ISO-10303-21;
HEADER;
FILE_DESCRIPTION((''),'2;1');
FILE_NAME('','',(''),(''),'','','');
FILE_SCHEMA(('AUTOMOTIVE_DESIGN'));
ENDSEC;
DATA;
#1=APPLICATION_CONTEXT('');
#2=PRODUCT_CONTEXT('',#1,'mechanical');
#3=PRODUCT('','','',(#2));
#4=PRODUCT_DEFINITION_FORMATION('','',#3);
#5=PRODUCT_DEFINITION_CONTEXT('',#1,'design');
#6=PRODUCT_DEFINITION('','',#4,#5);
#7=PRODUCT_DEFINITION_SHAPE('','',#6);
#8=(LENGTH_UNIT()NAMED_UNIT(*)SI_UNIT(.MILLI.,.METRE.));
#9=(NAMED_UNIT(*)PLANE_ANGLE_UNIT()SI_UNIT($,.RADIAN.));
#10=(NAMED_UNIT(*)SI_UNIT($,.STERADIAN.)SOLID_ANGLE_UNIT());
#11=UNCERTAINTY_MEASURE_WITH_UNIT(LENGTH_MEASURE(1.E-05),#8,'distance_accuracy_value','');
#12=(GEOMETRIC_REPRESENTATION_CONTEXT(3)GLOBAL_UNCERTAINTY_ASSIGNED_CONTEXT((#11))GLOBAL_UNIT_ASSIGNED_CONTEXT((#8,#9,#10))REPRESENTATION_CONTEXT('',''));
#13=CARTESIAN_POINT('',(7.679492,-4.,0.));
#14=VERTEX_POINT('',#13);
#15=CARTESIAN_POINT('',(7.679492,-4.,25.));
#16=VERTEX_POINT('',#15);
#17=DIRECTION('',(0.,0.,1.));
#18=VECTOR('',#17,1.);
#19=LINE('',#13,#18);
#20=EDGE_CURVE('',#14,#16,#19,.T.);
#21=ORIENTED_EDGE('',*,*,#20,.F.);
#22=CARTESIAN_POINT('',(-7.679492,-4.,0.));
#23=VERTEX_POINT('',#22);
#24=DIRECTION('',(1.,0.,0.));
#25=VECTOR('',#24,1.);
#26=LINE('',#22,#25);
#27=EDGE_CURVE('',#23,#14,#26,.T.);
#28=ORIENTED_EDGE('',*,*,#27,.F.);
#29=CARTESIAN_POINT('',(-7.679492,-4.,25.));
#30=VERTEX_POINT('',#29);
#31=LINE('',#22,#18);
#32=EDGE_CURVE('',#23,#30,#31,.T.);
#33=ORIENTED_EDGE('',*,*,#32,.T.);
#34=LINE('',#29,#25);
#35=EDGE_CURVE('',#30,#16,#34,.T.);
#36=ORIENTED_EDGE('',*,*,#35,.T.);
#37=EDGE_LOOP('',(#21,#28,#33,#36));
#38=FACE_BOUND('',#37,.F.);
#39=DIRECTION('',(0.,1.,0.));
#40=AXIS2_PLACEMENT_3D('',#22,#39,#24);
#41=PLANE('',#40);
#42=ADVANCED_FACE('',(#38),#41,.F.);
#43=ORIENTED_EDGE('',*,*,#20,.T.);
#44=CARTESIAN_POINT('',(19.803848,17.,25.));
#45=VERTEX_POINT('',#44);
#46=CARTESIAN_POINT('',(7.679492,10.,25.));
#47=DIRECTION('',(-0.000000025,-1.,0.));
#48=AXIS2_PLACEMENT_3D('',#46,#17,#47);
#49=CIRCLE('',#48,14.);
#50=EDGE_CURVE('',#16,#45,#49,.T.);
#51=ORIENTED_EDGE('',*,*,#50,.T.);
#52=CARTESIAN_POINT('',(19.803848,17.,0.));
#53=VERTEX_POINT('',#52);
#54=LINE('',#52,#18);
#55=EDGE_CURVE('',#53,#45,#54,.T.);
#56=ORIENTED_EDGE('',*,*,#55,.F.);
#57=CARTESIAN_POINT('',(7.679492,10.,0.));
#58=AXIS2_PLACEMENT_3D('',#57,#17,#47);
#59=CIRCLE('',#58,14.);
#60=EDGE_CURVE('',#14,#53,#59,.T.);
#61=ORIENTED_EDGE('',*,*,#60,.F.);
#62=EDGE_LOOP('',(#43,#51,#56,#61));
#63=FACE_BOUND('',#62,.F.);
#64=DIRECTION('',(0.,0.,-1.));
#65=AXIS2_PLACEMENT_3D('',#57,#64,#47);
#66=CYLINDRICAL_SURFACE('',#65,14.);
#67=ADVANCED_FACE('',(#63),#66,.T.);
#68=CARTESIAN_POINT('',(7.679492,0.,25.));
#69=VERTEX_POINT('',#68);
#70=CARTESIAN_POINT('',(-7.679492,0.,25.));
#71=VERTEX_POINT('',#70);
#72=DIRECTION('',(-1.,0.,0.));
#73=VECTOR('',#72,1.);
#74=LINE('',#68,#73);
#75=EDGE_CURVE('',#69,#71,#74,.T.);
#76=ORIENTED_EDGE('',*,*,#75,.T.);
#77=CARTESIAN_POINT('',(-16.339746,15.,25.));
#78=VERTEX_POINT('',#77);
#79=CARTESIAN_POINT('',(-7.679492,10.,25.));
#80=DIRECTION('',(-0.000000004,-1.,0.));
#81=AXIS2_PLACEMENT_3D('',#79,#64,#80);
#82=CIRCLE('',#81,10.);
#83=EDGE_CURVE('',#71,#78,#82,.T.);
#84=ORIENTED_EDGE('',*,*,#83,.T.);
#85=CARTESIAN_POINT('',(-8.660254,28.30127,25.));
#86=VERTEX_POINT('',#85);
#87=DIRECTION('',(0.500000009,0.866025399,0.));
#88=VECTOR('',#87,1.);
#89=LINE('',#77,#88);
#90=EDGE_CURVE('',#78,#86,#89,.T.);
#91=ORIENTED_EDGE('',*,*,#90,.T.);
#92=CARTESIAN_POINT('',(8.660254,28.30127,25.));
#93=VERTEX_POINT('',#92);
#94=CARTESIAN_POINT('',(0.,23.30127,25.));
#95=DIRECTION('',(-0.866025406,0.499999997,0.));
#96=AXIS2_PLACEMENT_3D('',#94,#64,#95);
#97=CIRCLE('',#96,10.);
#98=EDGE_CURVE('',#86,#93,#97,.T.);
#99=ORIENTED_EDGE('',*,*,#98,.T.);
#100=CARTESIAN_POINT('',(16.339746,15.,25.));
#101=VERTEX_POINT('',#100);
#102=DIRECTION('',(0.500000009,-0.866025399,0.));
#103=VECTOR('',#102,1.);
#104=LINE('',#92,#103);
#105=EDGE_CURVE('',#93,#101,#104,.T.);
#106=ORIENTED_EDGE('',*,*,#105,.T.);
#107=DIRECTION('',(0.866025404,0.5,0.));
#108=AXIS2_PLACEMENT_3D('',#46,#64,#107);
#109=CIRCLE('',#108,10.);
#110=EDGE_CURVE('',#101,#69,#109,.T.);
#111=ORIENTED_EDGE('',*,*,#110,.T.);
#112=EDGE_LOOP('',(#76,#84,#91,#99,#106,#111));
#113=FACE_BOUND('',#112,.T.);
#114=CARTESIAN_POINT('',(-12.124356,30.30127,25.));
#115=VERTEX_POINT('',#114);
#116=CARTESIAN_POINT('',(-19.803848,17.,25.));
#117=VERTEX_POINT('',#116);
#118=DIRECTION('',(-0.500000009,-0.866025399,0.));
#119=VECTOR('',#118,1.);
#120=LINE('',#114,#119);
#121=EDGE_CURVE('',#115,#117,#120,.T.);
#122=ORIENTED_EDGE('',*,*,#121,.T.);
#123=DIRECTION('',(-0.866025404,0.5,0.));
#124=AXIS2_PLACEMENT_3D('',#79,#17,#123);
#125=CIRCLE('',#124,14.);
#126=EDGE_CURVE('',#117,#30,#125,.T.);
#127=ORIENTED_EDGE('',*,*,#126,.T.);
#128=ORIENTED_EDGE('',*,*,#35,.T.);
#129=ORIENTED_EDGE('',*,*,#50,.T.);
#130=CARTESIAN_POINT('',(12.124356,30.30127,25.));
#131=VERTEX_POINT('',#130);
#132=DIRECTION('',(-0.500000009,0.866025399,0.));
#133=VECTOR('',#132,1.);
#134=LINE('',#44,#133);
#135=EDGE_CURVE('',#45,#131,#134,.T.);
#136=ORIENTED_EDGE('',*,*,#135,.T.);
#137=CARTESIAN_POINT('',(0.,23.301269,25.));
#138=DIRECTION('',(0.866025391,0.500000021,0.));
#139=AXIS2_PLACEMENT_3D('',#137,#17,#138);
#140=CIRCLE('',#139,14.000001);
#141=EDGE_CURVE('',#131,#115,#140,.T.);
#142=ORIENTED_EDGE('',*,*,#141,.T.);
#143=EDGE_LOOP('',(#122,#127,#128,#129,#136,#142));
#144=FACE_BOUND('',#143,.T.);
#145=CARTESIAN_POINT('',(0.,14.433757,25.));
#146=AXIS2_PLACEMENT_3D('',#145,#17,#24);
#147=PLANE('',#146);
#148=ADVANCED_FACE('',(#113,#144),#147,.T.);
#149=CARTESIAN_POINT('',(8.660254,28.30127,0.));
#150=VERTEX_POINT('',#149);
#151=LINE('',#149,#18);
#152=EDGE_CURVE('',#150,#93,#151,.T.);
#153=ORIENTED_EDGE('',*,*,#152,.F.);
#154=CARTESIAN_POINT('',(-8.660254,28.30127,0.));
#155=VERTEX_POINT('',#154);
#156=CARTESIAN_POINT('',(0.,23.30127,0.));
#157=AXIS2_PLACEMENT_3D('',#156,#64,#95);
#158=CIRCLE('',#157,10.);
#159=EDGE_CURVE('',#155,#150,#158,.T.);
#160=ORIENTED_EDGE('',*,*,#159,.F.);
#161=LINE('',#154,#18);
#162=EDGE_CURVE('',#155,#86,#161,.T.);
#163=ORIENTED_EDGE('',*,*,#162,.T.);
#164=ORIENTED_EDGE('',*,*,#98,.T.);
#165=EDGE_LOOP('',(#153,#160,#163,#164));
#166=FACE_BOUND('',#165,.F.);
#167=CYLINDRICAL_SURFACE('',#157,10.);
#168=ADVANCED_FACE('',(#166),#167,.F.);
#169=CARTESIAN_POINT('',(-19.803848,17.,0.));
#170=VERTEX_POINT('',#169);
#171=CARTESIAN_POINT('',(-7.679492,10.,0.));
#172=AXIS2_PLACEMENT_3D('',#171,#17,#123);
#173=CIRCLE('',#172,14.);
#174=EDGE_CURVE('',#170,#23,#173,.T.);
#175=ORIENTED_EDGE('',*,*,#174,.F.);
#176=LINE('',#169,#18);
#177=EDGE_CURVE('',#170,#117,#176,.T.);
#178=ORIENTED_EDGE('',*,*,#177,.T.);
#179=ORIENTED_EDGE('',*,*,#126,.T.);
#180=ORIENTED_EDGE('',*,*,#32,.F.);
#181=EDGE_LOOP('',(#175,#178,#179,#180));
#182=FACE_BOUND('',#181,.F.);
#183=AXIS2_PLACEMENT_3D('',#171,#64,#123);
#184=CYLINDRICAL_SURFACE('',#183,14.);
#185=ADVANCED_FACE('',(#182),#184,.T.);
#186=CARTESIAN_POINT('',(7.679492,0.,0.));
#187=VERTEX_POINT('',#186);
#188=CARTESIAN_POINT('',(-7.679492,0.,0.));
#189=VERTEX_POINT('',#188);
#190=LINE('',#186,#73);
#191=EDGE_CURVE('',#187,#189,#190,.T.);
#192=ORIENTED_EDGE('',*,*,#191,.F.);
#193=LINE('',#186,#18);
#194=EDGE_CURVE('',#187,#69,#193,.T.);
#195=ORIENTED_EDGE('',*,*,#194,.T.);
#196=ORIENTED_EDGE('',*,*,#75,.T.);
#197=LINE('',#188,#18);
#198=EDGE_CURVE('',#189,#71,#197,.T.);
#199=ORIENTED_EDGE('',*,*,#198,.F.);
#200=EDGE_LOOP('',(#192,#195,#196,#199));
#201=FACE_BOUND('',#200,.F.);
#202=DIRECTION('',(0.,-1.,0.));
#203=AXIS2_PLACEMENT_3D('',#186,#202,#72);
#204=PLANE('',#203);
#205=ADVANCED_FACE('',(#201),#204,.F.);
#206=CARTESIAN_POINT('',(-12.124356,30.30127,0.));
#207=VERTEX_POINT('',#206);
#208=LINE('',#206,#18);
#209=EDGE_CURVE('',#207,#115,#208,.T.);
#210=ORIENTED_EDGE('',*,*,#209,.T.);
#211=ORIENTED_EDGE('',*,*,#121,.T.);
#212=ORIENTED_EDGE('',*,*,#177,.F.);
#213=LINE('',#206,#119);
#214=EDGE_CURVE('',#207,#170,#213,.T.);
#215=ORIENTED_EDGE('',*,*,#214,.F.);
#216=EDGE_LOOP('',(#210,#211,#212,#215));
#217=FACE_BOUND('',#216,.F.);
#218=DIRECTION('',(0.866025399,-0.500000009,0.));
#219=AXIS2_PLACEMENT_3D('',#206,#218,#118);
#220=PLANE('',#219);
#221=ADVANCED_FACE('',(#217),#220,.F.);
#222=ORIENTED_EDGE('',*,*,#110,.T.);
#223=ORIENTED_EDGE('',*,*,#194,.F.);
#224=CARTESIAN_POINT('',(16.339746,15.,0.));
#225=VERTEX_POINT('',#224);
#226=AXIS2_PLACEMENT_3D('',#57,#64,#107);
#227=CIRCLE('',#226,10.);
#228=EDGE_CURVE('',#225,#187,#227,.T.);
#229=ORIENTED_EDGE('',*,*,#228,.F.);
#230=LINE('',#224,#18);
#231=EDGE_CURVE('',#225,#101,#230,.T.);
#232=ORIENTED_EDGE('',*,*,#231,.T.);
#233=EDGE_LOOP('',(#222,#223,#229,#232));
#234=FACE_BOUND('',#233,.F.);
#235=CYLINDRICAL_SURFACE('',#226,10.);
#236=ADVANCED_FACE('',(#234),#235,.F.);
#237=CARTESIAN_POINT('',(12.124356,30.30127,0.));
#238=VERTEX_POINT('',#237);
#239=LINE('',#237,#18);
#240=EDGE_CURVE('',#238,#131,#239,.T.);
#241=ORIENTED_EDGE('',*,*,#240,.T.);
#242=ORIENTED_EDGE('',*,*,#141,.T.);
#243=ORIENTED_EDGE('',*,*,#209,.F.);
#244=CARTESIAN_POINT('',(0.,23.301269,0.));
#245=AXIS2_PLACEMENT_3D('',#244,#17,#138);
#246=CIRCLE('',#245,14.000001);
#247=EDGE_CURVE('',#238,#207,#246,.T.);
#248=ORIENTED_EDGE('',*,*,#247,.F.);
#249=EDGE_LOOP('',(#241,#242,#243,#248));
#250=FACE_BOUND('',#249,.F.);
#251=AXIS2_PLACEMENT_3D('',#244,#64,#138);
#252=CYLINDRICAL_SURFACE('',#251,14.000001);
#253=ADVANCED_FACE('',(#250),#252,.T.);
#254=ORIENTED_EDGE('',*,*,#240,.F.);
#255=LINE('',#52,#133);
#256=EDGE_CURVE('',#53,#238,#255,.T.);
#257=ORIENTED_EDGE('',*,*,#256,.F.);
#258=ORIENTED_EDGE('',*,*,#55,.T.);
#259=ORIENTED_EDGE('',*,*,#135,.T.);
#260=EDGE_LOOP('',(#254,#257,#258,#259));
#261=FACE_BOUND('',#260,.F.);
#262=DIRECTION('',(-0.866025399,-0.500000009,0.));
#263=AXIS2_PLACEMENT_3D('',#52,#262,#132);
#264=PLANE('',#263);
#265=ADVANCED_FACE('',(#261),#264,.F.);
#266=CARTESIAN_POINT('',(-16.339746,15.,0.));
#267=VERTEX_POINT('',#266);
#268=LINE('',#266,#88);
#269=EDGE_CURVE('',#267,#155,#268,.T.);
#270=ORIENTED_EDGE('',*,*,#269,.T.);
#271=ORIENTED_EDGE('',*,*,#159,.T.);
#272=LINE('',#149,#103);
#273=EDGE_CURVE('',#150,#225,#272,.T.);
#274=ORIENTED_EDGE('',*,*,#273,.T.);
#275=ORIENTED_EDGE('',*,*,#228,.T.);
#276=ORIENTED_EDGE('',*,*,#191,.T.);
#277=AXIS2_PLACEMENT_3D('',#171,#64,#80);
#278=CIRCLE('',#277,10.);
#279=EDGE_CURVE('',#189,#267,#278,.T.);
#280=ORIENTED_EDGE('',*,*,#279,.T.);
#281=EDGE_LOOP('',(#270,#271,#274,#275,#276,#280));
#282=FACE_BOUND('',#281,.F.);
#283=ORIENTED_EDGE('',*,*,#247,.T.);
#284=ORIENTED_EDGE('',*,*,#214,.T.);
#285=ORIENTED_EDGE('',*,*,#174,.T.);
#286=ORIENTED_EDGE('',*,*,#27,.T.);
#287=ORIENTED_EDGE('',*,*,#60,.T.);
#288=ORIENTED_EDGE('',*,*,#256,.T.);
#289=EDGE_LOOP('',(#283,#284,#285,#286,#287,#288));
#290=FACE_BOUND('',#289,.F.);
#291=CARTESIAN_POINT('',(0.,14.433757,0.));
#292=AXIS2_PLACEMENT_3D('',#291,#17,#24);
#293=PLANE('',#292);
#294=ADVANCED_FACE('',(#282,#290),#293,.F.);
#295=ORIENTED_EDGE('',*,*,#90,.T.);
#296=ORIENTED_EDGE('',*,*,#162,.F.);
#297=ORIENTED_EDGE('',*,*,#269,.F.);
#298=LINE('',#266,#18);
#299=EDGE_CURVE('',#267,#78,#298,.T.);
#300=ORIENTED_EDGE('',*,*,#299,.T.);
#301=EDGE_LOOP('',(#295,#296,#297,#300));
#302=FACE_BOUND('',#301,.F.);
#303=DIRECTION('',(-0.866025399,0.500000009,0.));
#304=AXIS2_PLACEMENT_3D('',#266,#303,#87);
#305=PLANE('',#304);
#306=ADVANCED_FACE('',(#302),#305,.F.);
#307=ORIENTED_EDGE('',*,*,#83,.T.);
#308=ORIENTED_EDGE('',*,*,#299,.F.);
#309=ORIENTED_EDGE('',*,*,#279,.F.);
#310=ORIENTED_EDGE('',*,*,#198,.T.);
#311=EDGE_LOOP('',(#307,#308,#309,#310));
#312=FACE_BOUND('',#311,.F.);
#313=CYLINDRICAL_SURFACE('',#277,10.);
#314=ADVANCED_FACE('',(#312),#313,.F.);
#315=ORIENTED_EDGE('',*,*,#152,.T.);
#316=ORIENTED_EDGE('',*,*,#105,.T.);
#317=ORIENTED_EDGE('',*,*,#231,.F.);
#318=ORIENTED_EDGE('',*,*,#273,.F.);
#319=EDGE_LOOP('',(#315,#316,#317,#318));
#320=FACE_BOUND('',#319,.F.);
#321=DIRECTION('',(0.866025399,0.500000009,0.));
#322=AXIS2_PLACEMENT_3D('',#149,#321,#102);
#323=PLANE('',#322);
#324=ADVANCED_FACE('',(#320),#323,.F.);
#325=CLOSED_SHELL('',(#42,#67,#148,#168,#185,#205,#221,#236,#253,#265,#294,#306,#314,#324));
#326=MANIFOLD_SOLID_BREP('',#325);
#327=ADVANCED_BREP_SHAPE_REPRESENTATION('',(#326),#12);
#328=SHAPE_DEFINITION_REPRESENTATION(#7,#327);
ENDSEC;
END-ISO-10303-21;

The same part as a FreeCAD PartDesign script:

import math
import FreeCAD as App
import Part
import Sketcher
from FreeCAD import Vector
Q = App.Units.Quantity

doc = App.newDocument("Part")
body = doc.addObject("PartDesign::Body", "Body")

sketch1 = doc.addObject("Sketcher::SketchObject", "Sketch")
body.addObject(sketch1)
sketch1.AttachmentSupport = (doc.XY_Plane, [""])
sketch1.MapMode = "FlatFace"
sketch1.addGeometry(Part.ArcOfCircle(Part.Circle(Vector(7.679492, 10, 0), Vector(0, 0, 1), 14), math.radians(-90.000001), math.radians(30)), False)
sketch1.addGeometry(Part.LineSegment(Vector(19.803848, 17, 0), Vector(12.124356, 30.30127, 0)), False)
sketch1.addGeometry(Part.ArcOfCircle(Part.Circle(Vector(0, 23.301269, 0), Vector(0, 0, 1), 14.000001), math.radians(30.000001), math.radians(149.999999)), False)
sketch1.addGeometry(Part.LineSegment(Vector(-12.124356, 30.30127, 0), Vector(-19.803848, 17, 0)), False)
sketch1.addGeometry(Part.ArcOfCircle(Part.Circle(Vector(-7.679492, 10, 0), Vector(0, 0, 1), 14), math.radians(150), math.radians(270.000001)), False)
sketch1.addGeometry(Part.LineSegment(Vector(-7.679492, -4, 0), Vector(7.679492, -4, 0)), False)
sketch1.addGeometry(Part.ArcOfCircle(Part.Circle(Vector(7.679492, 10, 0), Vector(0, 0, 1), 10), math.radians(-90), math.radians(30)), False)
sketch1.addGeometry(Part.LineSegment(Vector(7.679492, 0, 0), Vector(-7.679492, 0, 0)), False)
sketch1.addGeometry(Part.ArcOfCircle(Part.Circle(Vector(-7.679492, 10, 0), Vector(0, 0, 1), 10), math.radians(150), math.radians(270)), False)
sketch1.addGeometry(Part.LineSegment(Vector(-16.339746, 15, 0), Vector(-8.660254, 28.30127, 0)), False)
sketch1.addGeometry(Part.ArcOfCircle(Part.Circle(Vector(0, 23.30127, 0), Vector(0, 0, 1), 10), math.radians(30), math.radians(150)), False)
sketch1.addGeometry(Part.LineSegment(Vector(8.660254, 28.30127, 0), Vector(16.339746, 15, 0)), False)
sketch1.addConstraint(Sketcher.Constraint("Tangent", 0, 2, 1, 1))
sketch1.addConstraint(Sketcher.Constraint("Tangent", 1, 2, 2, 1))
sketch1.addConstraint(Sketcher.Constraint("Tangent", 2, 2, 3, 1))
sketch1.addConstraint(Sketcher.Constraint("Tangent", 3, 2, 4, 1))
sketch1.addConstraint(Sketcher.Constraint("Tangent", 4, 2, 5, 1))
sketch1.addConstraint(Sketcher.Constraint("Tangent", 5, 2, 0, 1))
sketch1.addConstraint(Sketcher.Constraint("Tangent", 6, 1, 7, 1))
sketch1.addConstraint(Sketcher.Constraint("Tangent", 7, 2, 8, 2))
sketch1.addConstraint(Sketcher.Constraint("Tangent", 8, 1, 9, 1))
sketch1.addConstraint(Sketcher.Constraint("Tangent", 9, 2, 10, 2))
sketch1.addConstraint(Sketcher.Constraint("Tangent", 10, 1, 11, 1))
sketch1.addConstraint(Sketcher.Constraint("Tangent", 11, 2, 6, 2))
sketch1.addConstraint(Sketcher.Constraint("Horizontal", 5))
sketch1.addConstraint(Sketcher.Constraint("Horizontal", 7))
sketch1.addConstraint(Sketcher.Constraint("Coincident", 6, 3, 0, 3))
sketch1.addConstraint(Sketcher.Constraint("Coincident", 8, 3, 4, 3))
sketch1.addConstraint(Sketcher.Constraint("Coincident", 10, 3, 2, 3))
sketch1.addConstraint(Sketcher.Constraint("Equal", 0, 2))
sketch1.addConstraint(Sketcher.Constraint("Equal", 2, 4))
sketch1.addConstraint(Sketcher.Constraint("Equal", 8, 10))
sketch1.addConstraint(Sketcher.Constraint("Symmetric", 6, 1, 7, 2, -1, 1))
sketch1.addConstraint(Sketcher.Constraint("PointOnObject", 2, 3, -2))
sketch1.addConstraint(Sketcher.Constraint("Radius", 0, Q("14 mm")))
sketch1.addConstraint(Sketcher.Constraint("Radius", 6, Q("10 mm")))
sketch1.addConstraint(Sketcher.Constraint("Angle", 1, Q("120.000001 deg")))
sketch1.addConstraint(Sketcher.Constraint("DistanceX", 5, 1, 5, 2, Q("15.358984 mm")))
pad1 = doc.addObject("PartDesign::Pad", "Pad")
body.addObject(pad1)
pad1.Profile = sketch1
pad1.Length = 25

doc.recompute()
